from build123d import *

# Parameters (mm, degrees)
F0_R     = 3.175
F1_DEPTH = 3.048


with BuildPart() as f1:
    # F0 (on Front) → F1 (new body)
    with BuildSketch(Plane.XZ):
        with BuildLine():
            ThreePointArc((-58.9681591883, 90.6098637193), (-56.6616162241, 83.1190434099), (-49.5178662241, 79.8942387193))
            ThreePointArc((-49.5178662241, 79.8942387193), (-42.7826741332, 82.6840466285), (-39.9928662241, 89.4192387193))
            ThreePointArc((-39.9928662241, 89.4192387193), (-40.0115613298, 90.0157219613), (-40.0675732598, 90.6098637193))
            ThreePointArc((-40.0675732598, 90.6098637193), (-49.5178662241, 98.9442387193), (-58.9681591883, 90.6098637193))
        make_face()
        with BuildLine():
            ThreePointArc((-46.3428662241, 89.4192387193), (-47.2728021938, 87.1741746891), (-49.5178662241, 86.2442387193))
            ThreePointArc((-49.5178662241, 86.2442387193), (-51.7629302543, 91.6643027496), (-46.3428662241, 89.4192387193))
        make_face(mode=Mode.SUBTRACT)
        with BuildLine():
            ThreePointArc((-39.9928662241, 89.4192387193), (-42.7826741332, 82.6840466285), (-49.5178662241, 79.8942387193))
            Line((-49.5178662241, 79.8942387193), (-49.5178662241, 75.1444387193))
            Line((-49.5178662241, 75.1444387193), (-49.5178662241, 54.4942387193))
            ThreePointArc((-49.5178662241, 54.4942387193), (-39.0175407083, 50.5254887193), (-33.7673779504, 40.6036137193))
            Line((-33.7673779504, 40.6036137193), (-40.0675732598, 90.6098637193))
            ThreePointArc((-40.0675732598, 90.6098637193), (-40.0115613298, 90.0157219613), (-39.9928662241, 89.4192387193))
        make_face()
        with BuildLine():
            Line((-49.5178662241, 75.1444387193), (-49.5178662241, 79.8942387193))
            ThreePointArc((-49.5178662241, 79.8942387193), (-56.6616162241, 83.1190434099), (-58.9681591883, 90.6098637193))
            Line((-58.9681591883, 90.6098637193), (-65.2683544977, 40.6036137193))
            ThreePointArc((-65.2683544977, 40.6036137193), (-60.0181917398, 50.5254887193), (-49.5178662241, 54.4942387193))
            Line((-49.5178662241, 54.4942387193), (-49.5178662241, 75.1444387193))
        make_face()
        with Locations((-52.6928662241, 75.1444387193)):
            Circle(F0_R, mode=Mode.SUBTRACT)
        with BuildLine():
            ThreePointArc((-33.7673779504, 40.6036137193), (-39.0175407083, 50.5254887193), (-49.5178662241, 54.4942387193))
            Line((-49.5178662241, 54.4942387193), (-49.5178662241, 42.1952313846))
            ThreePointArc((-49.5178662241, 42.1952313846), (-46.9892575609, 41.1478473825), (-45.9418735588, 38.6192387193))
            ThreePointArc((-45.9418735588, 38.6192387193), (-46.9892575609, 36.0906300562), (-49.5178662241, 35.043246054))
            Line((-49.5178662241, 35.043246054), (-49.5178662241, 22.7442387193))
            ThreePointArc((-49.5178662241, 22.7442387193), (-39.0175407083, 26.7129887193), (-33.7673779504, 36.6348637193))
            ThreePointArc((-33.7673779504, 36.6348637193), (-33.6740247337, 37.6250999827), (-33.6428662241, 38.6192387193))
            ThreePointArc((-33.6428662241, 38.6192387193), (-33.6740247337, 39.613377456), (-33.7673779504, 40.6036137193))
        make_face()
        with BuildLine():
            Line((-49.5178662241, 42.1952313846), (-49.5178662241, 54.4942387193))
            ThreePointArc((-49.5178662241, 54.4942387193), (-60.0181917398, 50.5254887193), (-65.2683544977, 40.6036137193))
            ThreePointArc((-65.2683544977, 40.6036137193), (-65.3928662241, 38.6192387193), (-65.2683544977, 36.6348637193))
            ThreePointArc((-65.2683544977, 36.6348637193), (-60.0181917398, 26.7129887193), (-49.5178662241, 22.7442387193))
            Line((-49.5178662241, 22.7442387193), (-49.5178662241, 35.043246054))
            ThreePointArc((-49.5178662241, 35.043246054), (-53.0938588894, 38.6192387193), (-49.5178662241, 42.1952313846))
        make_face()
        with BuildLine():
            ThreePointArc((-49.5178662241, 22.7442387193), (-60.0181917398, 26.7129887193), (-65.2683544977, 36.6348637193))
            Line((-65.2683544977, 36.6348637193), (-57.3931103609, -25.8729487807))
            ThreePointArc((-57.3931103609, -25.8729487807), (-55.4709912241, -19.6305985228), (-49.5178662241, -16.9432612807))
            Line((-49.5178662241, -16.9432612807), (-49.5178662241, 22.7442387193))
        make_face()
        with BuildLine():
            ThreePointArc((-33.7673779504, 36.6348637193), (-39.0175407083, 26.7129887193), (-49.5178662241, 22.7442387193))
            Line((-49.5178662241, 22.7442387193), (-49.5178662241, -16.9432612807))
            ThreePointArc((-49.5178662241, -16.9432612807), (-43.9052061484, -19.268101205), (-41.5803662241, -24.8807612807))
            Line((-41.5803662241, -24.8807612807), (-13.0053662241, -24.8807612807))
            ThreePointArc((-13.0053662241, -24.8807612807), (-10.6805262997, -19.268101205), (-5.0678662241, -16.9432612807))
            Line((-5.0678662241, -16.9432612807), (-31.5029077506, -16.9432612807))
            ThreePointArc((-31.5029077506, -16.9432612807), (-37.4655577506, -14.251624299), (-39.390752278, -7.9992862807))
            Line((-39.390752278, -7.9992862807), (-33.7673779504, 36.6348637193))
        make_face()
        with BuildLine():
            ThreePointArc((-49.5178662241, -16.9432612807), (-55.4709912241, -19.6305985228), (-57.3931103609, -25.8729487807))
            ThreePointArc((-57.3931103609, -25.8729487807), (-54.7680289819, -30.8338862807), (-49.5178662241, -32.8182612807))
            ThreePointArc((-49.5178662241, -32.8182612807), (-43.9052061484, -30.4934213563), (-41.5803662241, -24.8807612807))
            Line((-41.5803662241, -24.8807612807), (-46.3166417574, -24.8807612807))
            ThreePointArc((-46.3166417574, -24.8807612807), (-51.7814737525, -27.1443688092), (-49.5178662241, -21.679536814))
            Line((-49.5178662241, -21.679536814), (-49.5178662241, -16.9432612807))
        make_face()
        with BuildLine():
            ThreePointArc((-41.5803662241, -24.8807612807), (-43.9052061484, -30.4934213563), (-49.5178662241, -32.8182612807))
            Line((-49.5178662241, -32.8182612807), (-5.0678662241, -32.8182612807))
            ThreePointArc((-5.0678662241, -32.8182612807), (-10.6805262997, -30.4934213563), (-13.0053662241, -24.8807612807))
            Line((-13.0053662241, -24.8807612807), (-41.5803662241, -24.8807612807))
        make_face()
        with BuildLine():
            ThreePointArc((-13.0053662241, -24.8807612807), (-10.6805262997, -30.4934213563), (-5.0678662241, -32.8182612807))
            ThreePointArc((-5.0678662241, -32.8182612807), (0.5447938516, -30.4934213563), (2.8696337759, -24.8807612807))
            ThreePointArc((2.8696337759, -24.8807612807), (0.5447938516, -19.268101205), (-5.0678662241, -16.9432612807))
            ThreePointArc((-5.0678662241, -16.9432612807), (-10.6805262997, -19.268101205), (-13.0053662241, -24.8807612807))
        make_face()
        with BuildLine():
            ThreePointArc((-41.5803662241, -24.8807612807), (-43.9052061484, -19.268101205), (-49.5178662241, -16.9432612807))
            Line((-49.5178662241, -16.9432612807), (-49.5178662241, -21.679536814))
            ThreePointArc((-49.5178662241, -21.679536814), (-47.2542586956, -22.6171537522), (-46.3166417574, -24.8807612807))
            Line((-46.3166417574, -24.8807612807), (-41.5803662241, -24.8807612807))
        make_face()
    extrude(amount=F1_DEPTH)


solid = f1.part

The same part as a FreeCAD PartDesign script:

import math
import FreeCAD as App
import Part
import Sketcher

V = App.Vector
Q = App.Units.Quantity

doc = App.newDocument("Part")
body = doc.addObject("PartDesign::Body", "Body")

sketch1 = body.newObject("Sketcher::SketchObject", "Sketch")
sketch1.AttachmentSupport = (doc.getObject("XZ_Plane"), [""])
sketch1.MapMode = "FlatFace"
sketch1.addGeometry([
    Part.ArcOfCircle(Part.Circle(V(-49.5, -24.9, 0), V(0, 0, 1), 7.9), math.radians(-173), math.radians(-90)),
    Part.LineSegment(V(-49.5, -32.8, 0), V(-5.1, -32.8, 0)),
    Part.ArcOfCircle(Part.Circle(V(-5.1, -24.9, 0), V(0, 0, 1), 7.9), math.radians(-90), math.radians(0)),
    Part.ArcOfCircle(Part.Circle(V(-5.1, -24.9, 0), V(0, 0, 1), 7.9), math.radians(0), math.radians(90)),
    Part.LineSegment(V(-5.1, -16.9, 0), V(-31.5, -16.9, 0)),
    Part.ArcOfCircle(Part.Circle(V(-31.5, -9, 0), V(0, 0, 1), 8), math.radians(173), math.radians(270)),
    Part.LineSegment(V(-39.4, -8, 0), V(-33.8, 36.6, 0)),
    Part.ArcOfCircle(Part.Circle(V(-49.5, 38.6, 0), V(0, 0, 1), 15.9), math.radians(-7.18), math.radians(0)),
    Part.ArcOfCircle(Part.Circle(V(-49.5, 38.6, 0), V(0, 0, 1), 15.9), math.radians(0), math.radians(7.18)),
    Part.LineSegment(V(-33.8, 40.6, 0), V(-40.1, 90.6, 0)),
    Part.ArcOfCircle(Part.Circle(V(-49.5, 89.4, 0), V(0, 0, 1), 9.5), math.radians(7), math.radians(173)),
    Part.LineSegment(V(-59, 90.6, 0), V(-65.3, 40.6, 0)),
    Part.ArcOfCircle(Part.Circle(V(-49.5, 38.6, 0), V(0, 0, 1), 15.9), math.radians(172.82), math.radians(187.18)),
    Part.LineSegment(V(-65.3, 36.6, 0), V(-57.4, -25.9, 0)),
    Part.ArcOfCircle(Part.Circle(V(-49.5, -24.9, 0), V(0, 0, 1), 3.2), math.radians(90), math.radians(360)),
    Part.ArcOfCircle(Part.Circle(V(-49.5, -24.9, 0), V(0, 0, 1), 3.2), math.radians(0), math.radians(90)),
    Part.ArcOfCircle(Part.Circle(V(-49.5, 38.6, 0), V(0, 0, 1), 3.6), math.radians(0), math.radians(90)),
    Part.ArcOfCircle(Part.Circle(V(-49.5, 38.6, 0), V(0, 0, 1), 3.6), math.radians(-90), math.radians(0)),
    Part.ArcOfCircle(Part.Circle(V(-49.5, 38.6, 0), V(0, 0, 1), 3.6), math.radians(90), math.radians(270)),
    Part.Circle(V(-52.7, 75.1, 0), V(0, 0, 1), 3.2),
    Part.ArcOfCircle(Part.Circle(V(-49.5, 89.4, 0), V(0, 0, 1), 3.2), math.radians(0), math.radians(270)),
    Part.ArcOfCircle(Part.Circle(V(-49.5, 89.4, 0), V(0, 0, 1), 3.2), math.radians(-90), math.radians(0)),
], False)
sketch1.addConstraint([
    Sketcher.Constraint("Tangent", 0, 2, 1, 1),
    Sketcher.Constraint("Tangent", 1, 2, 2, 1),
    Sketcher.Constraint("Tangent", 2, 2, 3, 1),
    Sketcher.Constraint("Tangent", 3, 2, 4, 1),
    Sketcher.Constraint("Tangent", 4, 2, 5, 2),
    Sketcher.Constraint("Tangent", 5, 1, 6, 1),
    Sketcher.Constraint("Tangent", 6, 2, 7, 1),
    Sketcher.Constraint("Tangent", 7, 2, 8, 1),
    Sketcher.Constraint("Tangent", 8, 2, 9, 1),
    Sketcher.Constraint("Tangent", 9, 2, 10, 1),
    Sketcher.Constraint("Tangent", 10, 2, 11, 1),
    Sketcher.Constraint("Tangent", 11, 2, 12, 1),
    Sketcher.Constraint("Tangent", 12, 2, 13, 1),
    Sketcher.Constraint("Tangent", 13, 2, 0, 1),
    Sketcher.Constraint("Tangent", 14, 1, 15, 2),
    Sketcher.Constraint("Coincident", 15, 1, 14, 2),
    Sketcher.Constraint("Tangent", 16, 1, 17, 2),
    Sketcher.Constraint("Tangent", 17, 1, 18, 2),
    Sketcher.Constraint("Tangent", 18, 1, 16, 2),
    Sketcher.Constraint("Tangent", 20, 1, 21, 2),
    Sketcher.Constraint("Coincident", 21, 1, 20, 2),
    Sketcher.Constraint("Horizontal", 1),
    Sketcher.Constraint("Horizontal", 4),
    Sketcher.Constraint("Coincident", 12, 3, 7, 3),
    Sketcher.Constraint("Coincident", 14, 3, 0, 3),
    Sketcher.Constraint("Coincident", 16, 3, 7, 3),
    Sketcher.Constraint("Coincident", 20, 3, 10, 3),
    Sketcher.Constraint("Equal", 0, 2),
    Sketcher.Constraint("Equal", 2, 3),
    Sketcher.Constraint("Equal", 7, 8),
    Sketcher.Constraint("Equal", 8, 12),
    Sketcher.Constraint("Equal", 19, 20),
    Sketcher.Constraint("Parallel", 6, 11),
    Sketcher.Constraint("Parallel", 9, 13),
    Sketcher.Constraint("Horizontal", 15, 3, 2, 2),
    Sketcher.Constraint("Horizontal", 18, 3, 7, 2),
    Sketcher.Constraint("Horizontal", 9, 2, 10, 2),
    Sketcher.Constraint("Horizontal", 2, 2, 15, 1),
    Sketcher.Constraint("Horizontal", 7, 2, 16, 1),
    Sketcher.Constraint("Horizontal", 21, 3, 20, 1),
    Sketcher.Constraint("Vertical", 0, 3, 7, 3),
    Sketcher.Constraint("Vertical", 0, 2, 14, 1),
    Sketcher.Constraint("Vertical", 14, 1, 17, 1),
    Sketcher.Constraint("Vertical", 17, 1, 18, 1),
    Sketcher.Constraint("Vertical", 18, 1, 21, 1),
    Sketcher.Constraint("Diameter", 19, Q("0.25 in")),
    Sketcher.Constraint("Radius", 0, Q("0.3125 in")),
    Sketcher.Constraint("Radius", 5, Q("0.313 in")),
    Sketcher.Constraint("Radius", 7, Q("0.625 in")),
    Sketcher.Constraint("Radius", 10, Q("0.375 in")),
    Sketcher.Constraint("DistanceY", 8, 3, 10, 3, Q("2 in")),
    Sketcher.Constraint("DistanceX", 1, 1, 1, 2, Q("1.75 in")),
    Sketcher.Constraint("DistanceX", 19, 3, 10, 3, Q("0.125 in")),
    Sketcher.Constraint("DistanceY", 19, 3, 10, 3, Q("0.562 in")),
    Sketcher.Constraint("Radius", 14, 3.201224),
    Sketcher.Constraint("Radius", 16, 3.575993),
    Sketcher.Constraint("DistanceY", 0, 3, -1, 1, 24.880761),
    Sketcher.Constraint("DistanceX", 10, 2, -1, 1, 58.968159),
])
pad1 = body.newObject("PartDesign::Pad", "Pad")
pad1.Profile = sketch1
pad1.Length = Q("0.12 in")

doc.recompute()
